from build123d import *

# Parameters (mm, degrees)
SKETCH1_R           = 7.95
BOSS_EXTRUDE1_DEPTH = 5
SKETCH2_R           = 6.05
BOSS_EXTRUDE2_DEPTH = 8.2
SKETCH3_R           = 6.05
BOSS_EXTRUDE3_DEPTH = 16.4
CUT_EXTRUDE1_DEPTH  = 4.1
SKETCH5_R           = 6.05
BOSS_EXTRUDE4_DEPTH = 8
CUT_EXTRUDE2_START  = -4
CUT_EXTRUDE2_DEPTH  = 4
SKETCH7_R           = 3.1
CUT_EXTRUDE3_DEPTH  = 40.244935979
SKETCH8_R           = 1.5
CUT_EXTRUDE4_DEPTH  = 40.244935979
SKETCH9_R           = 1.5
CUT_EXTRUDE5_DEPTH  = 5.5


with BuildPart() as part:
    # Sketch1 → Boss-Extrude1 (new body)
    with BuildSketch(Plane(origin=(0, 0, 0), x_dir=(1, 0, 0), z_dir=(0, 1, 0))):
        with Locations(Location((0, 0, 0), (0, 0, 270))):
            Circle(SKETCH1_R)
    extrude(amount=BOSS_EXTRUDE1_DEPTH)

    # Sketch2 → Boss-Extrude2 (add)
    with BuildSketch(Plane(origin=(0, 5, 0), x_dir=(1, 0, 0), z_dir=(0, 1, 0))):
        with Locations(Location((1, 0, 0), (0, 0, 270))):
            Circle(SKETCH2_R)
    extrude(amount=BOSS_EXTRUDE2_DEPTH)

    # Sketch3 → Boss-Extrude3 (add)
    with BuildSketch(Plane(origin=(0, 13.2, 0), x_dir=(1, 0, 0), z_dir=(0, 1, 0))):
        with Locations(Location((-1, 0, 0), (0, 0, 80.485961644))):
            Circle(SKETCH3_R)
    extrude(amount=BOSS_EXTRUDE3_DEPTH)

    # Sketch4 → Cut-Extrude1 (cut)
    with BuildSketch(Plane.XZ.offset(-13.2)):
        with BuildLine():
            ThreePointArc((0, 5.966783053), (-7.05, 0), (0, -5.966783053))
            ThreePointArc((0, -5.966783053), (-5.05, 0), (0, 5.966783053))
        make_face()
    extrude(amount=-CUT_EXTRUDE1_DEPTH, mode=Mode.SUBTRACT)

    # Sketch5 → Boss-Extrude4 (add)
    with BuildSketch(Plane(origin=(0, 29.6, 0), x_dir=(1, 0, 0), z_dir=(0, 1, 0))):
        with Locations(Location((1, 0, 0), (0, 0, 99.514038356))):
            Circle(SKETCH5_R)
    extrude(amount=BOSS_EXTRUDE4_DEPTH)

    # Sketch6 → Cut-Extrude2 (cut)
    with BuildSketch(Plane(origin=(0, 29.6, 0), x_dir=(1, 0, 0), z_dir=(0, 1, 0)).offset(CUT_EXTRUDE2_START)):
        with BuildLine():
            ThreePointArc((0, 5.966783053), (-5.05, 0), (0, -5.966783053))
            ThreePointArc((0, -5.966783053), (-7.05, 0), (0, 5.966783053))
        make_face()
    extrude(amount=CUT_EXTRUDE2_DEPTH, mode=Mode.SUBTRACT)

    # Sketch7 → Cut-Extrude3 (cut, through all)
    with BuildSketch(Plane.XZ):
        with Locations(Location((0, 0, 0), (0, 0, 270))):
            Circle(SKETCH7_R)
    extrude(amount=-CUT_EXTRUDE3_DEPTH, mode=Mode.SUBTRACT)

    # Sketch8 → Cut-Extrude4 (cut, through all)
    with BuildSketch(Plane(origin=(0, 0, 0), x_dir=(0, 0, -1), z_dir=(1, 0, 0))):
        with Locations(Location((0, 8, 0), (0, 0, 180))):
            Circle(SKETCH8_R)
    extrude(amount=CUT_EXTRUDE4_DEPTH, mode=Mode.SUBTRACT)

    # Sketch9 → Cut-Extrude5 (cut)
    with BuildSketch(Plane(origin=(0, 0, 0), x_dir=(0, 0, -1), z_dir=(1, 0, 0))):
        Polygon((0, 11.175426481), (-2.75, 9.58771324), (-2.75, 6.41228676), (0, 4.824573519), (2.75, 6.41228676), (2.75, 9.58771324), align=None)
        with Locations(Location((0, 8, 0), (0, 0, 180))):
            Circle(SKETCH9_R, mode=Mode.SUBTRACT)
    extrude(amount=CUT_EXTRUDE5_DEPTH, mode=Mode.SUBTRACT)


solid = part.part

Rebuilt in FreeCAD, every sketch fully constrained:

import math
import FreeCAD as App
import Part
import Sketcher

V = App.Vector
Q = App.Units.Quantity

doc = App.newDocument("Part")
body = doc.addObject("PartDesign::Body", "Body")

# Sketch on XZ plane
sketch1 = doc.addObject("Sketcher::SketchObject", "Sketch")
body.addObject(sketch1)
sketch1.AttachmentSupport = (doc.XZ_Plane, [""])
sketch1.MapMode = "FlatFace"
sketch1.addGeometry(Part.Circle(V(0, 0, 0), V(0, 0, 1), 8), False)
sketch1.addConstraint([
    Sketcher.Constraint("Coincident", 0, 3, -1, 1),
    Sketcher.Constraint("Diameter", 0, 15.9),
])
pad1 = doc.addObject("PartDesign::Pad", "Pad")
body.addObject(pad1)
pad1.Profile = sketch1
pad1.Length = 5
pad1.Reversed = True

# Sketch on XZ plane
sketch2 = doc.addObject("Sketcher::SketchObject", "Sketch001")
body.addObject(sketch2)
sketch2.AttachmentSupport = (doc.XZ_Plane, [""])
sketch2.MapMode = "FlatFace"
sketch2.AttachmentOffset = App.Placement(V(0, 0, -5), App.Rotation())
sketch2.addGeometry(Part.Circle(V(1, 0, 0), V(0, 0, 1), 6), False)
sketch2.addConstraint([
    Sketcher.Constraint("PointOnObject", 0, 3, -1),
    Sketcher.Constraint("Diameter", 0, 12.1),
    Sketcher.Constraint("DistanceX", -1, 1, 0, 3, 1.0),
])
pad2 = doc.addObject("PartDesign::Pad", "Pad001")
body.addObject(pad2)
pad2.Profile = sketch2
pad2.Length = 8.2
pad2.Reversed = True

# Sketch on XZ plane
sketch3 = doc.addObject("Sketcher::SketchObject", "Sketch002")
body.addObject(sketch3)
sketch3.AttachmentSupport = (doc.XZ_Plane, [""])
sketch3.MapMode = "FlatFace"
sketch3.AttachmentOffset = App.Placement(V(0, 0, -13.2), App.Rotation())
sketch3.addGeometry(Part.Circle(V(-1, 0, 0), V(0, 0, 1), 6), False)
sketch3.addConstraint([
    Sketcher.Constraint("PointOnObject", 0, 3, -1),
    Sketcher.Constraint("Diameter", 0, 12.1),
    Sketcher.Constraint("DistanceX", 0, 3, -1, 1, 1.0),
])
pad3 = doc.addObject("PartDesign::Pad", "Pad002")
body.addObject(pad3)
pad3.Profile = sketch3
pad3.Length = 16.4
pad3.Reversed = True

# Sketch on XZ plane
sketch4 = doc.addObject("Sketcher::SketchObject", "Sketch003")
body.addObject(sketch4)
sketch4.AttachmentSupport = (doc.XZ_Plane, [""])
sketch4.MapMode = "FlatFace"
sketch4.AttachmentOffset = App.Placement(V(0, 0, -13.2), App.Rotation())
sketch4.addGeometry([
    Part.ArcOfCircle(Part.Circle(V(-1, 0, 0), V(0, 0, 1), 6), math.radians(80), math.radians(280)),
    Part.ArcOfCircle(Part.Circle(V(1, 0, 0), V(0, 0, 1), 6), math.radians(100), math.radians(260)),
], False)
sketch4.addConstraint([
    Sketcher.Constraint("Coincident", 0, 1, 1, 1),
    Sketcher.Constraint("Coincident", 1, 2, 0, 2),
    Sketcher.Constraint("Equal", 0, 1),
    Sketcher.Constraint("Symmetric", 0, 3, 1, 3, -1, 1),
    Sketcher.Constraint("PointOnObject", 0, 3, -1),
    Sketcher.Constraint("Radius", 0, 6.05),
    Sketcher.Constraint("DistanceX", 0, 3, -1, 1, 1.0),
])
pocket1 = doc.addObject("PartDesign::Pocket", "Pocket")
body.addObject(pocket1)
pocket1.Profile = sketch4
pocket1.Length = 4.1

# Sketch on XZ plane
sketch5 = doc.addObject("Sketcher::SketchObject", "Sketch004")
body.addObject(sketch5)
sketch5.AttachmentSupport = (doc.XZ_Plane, [""])
sketch5.MapMode = "FlatFace"
sketch5.AttachmentOffset = App.Placement(V(0, 0, -29.6), App.Rotation())
sketch5.addGeometry(Part.Circle(V(1, 0, 0), V(0, 0, 1), 6), False)
sketch5.addConstraint([
    Sketcher.Constraint("PointOnObject", 0, 3, -1),
    Sketcher.Constraint("Diameter", 0, 12.1),
    Sketcher.Constraint("DistanceX", -1, 1, 0, 3, 1.0),
])
pad4 = doc.addObject("PartDesign::Pad", "Pad003")
body.addObject(pad4)
pad4.Profile = sketch5
pad4.Length = 8
pad4.Reversed = True

# Sketch on XZ plane
sketch6 = doc.addObject("Sketcher::SketchObject", "Sketch005")
body.addObject(sketch6)
sketch6.AttachmentSupport = (doc.XZ_Plane, [""])
sketch6.MapMode = "FlatFace"
sketch6.AttachmentOffset = App.Placement(V(0, 0, -25.6), App.Rotation())
sketch6.addGeometry([
    Part.ArcOfCircle(Part.Circle(V(1, 0, 0), V(0, 0, 1), 6), math.radians(100), math.radians(260)),
    Part.ArcOfCircle(Part.Circle(V(-1, 0, 0), V(0, 0, 1), 6), math.radians(80), math.radians(280)),
], False)
sketch6.addConstraint([
    Sketcher.Constraint("Coincident", 0, 1, 1, 1),
    Sketcher.Constraint("Coincident", 1, 2, 0, 2),
    Sketcher.Constraint("Equal", 0, 1),
    Sketcher.Constraint("Symmetric", 0, 3, 1, 3, -1, 1),
    Sketcher.Constraint("PointOnObject", 0, 3, -1),
    Sketcher.Constraint("Radius", 0, 6.05),
    Sketcher.Constraint("DistanceX", -1, 1, 0, 3, 1.0),
])
pocket2 = doc.addObject("PartDesign::Pocket", "Pocket001")
body.addObject(pocket2)
pocket2.Profile = sketch6
pocket2.Length = 4

# Sketch on XZ plane
sketch7 = doc.addObject("Sketcher::SketchObject", "Sketch006")
body.addObject(sketch7)
sketch7.AttachmentSupport = (doc.XZ_Plane, [""])
sketch7.MapMode = "FlatFace"
sketch7.addGeometry(Part.Circle(V(0, 0, 0), V(0, 0, 1), 3.1), False)
sketch7.addConstraint([
    Sketcher.Constraint("Coincident", 0, 3, -1, 1),
    Sketcher.Constraint("Diameter", 0, 6.2),
])
pocket3 = doc.addObject("PartDesign::Pocket", "Pocket002")
body.addObject(pocket3)
pocket3.Profile = sketch7
pocket3.Type = "ThroughAll"

# Sketch on YZ plane
sketch8 = doc.addObject("Sketcher::SketchObject", "Sketch007")
body.addObject(sketch8)
sketch8.AttachmentSupport = (doc.YZ_Plane, [""])
sketch8.MapMode = "FlatFace"
sketch8.addGeometry(Part.Circle(V(8, 0, 0), V(0, 0, 1), 1.5), False)
sketch8.addConstraint([
    Sketcher.Constraint("PointOnObject", 0, 3, -1),
    Sketcher.Constraint("Diameter", 0, 3.0),
    Sketcher.Constraint("DistanceX", -1, 1, 0, 3, 8.0),
])
pocket4 = doc.addObject("PartDesign::Pocket", "Pocket003")
body.addObject(pocket4)
pocket4.Profile = sketch8
pocket4.Type = "ThroughAll"
pocket4.Reversed = True

# Sketch on YZ plane
sketch9 = doc.addObject("Sketcher::SketchObject", "Sketch008")
body.addObject(sketch9)
sketch9.AttachmentSupport = (doc.YZ_Plane, [""])
sketch9.MapMode = "FlatFace"
sketch9.addGeometry([
    Part.LineSegment(V(11.2, 0, 0), V(9.6, 2.8, 0)),  # 0
    Part.LineSegment(V(9.6, 2.8, 0), V(6.4, 2.8, 0)),  # 1
    Part.LineSegment(V(6.4, 2.8, 0), V(4.8, 0, 0)),  # 2
    Part.LineSegment(V(4.8, 0, 0), V(6.4, -2.8, 0)),  # 3
    Part.LineSegment(V(6.4, -2.8, 0), V(9.6, -2.8, 0)),  # 4
    Part.LineSegment(V(9.6, -2.8, 0), V(11.2, 0, 0)),  # 5
    Part.Circle(V(8, 0, 0), V(0, 0, 1), 1.5),  # 6
], False)
sketch9.addConstraint([
    Sketcher.Constraint("Coincident", 0, 2, 1, 1),
    Sketcher.Constraint("Coincident", 1, 2, 2, 1),
    Sketcher.Constraint("Coincident", 2, 2, 3, 1),
    Sketcher.Constraint("Coincident", 3, 2, 4, 1),
    Sketcher.Constraint("Coincident", 4, 2, 5, 1),
    Sketcher.Constraint("Coincident", 5, 2, 0, 1),
    Sketcher.Constraint("Horizontal", 1),
    Sketcher.Constraint("Horizontal", 4),
    Sketcher.Constraint("Symmetric", 1, 2, 3, 2, -1),
    Sketcher.Constraint("PointOnObject", 6, 3, -1),
    Sketcher.Constraint("PointOnObject", 2, 2, -1),
    Sketcher.Constraint("PointOnObject", 5, 2, -1),
    Sketcher.Constraint("Parallel", 0, 3),
    Sketcher.Constraint("Parallel", 2, 5),
    Sketcher.Constraint("Diameter", 6, 3.0),
    Sketcher.Constraint("Angle", 0, Q("120 deg")),
    Sketcher.Constraint("DistanceX", -1, 1, 6, 3, 8.0),
    Sketcher.Constraint("DistanceY", 3, 2, 1, 2, 5.5),
    Sketcher.Constraint("DistanceX", 1, 2, 1, 1, 3.175426),
    Sketcher.Constraint("DistanceX", -1, 1, 0, 2, 9.587713),
])
pocket5 = doc.addObject("PartDesign::Pocket", "Pocket004")
body.addObject(pocket5)
pocket5.Profile = sketch9
pocket5.Length = 5.5
pocket5.Reversed = True

doc.recompute()
